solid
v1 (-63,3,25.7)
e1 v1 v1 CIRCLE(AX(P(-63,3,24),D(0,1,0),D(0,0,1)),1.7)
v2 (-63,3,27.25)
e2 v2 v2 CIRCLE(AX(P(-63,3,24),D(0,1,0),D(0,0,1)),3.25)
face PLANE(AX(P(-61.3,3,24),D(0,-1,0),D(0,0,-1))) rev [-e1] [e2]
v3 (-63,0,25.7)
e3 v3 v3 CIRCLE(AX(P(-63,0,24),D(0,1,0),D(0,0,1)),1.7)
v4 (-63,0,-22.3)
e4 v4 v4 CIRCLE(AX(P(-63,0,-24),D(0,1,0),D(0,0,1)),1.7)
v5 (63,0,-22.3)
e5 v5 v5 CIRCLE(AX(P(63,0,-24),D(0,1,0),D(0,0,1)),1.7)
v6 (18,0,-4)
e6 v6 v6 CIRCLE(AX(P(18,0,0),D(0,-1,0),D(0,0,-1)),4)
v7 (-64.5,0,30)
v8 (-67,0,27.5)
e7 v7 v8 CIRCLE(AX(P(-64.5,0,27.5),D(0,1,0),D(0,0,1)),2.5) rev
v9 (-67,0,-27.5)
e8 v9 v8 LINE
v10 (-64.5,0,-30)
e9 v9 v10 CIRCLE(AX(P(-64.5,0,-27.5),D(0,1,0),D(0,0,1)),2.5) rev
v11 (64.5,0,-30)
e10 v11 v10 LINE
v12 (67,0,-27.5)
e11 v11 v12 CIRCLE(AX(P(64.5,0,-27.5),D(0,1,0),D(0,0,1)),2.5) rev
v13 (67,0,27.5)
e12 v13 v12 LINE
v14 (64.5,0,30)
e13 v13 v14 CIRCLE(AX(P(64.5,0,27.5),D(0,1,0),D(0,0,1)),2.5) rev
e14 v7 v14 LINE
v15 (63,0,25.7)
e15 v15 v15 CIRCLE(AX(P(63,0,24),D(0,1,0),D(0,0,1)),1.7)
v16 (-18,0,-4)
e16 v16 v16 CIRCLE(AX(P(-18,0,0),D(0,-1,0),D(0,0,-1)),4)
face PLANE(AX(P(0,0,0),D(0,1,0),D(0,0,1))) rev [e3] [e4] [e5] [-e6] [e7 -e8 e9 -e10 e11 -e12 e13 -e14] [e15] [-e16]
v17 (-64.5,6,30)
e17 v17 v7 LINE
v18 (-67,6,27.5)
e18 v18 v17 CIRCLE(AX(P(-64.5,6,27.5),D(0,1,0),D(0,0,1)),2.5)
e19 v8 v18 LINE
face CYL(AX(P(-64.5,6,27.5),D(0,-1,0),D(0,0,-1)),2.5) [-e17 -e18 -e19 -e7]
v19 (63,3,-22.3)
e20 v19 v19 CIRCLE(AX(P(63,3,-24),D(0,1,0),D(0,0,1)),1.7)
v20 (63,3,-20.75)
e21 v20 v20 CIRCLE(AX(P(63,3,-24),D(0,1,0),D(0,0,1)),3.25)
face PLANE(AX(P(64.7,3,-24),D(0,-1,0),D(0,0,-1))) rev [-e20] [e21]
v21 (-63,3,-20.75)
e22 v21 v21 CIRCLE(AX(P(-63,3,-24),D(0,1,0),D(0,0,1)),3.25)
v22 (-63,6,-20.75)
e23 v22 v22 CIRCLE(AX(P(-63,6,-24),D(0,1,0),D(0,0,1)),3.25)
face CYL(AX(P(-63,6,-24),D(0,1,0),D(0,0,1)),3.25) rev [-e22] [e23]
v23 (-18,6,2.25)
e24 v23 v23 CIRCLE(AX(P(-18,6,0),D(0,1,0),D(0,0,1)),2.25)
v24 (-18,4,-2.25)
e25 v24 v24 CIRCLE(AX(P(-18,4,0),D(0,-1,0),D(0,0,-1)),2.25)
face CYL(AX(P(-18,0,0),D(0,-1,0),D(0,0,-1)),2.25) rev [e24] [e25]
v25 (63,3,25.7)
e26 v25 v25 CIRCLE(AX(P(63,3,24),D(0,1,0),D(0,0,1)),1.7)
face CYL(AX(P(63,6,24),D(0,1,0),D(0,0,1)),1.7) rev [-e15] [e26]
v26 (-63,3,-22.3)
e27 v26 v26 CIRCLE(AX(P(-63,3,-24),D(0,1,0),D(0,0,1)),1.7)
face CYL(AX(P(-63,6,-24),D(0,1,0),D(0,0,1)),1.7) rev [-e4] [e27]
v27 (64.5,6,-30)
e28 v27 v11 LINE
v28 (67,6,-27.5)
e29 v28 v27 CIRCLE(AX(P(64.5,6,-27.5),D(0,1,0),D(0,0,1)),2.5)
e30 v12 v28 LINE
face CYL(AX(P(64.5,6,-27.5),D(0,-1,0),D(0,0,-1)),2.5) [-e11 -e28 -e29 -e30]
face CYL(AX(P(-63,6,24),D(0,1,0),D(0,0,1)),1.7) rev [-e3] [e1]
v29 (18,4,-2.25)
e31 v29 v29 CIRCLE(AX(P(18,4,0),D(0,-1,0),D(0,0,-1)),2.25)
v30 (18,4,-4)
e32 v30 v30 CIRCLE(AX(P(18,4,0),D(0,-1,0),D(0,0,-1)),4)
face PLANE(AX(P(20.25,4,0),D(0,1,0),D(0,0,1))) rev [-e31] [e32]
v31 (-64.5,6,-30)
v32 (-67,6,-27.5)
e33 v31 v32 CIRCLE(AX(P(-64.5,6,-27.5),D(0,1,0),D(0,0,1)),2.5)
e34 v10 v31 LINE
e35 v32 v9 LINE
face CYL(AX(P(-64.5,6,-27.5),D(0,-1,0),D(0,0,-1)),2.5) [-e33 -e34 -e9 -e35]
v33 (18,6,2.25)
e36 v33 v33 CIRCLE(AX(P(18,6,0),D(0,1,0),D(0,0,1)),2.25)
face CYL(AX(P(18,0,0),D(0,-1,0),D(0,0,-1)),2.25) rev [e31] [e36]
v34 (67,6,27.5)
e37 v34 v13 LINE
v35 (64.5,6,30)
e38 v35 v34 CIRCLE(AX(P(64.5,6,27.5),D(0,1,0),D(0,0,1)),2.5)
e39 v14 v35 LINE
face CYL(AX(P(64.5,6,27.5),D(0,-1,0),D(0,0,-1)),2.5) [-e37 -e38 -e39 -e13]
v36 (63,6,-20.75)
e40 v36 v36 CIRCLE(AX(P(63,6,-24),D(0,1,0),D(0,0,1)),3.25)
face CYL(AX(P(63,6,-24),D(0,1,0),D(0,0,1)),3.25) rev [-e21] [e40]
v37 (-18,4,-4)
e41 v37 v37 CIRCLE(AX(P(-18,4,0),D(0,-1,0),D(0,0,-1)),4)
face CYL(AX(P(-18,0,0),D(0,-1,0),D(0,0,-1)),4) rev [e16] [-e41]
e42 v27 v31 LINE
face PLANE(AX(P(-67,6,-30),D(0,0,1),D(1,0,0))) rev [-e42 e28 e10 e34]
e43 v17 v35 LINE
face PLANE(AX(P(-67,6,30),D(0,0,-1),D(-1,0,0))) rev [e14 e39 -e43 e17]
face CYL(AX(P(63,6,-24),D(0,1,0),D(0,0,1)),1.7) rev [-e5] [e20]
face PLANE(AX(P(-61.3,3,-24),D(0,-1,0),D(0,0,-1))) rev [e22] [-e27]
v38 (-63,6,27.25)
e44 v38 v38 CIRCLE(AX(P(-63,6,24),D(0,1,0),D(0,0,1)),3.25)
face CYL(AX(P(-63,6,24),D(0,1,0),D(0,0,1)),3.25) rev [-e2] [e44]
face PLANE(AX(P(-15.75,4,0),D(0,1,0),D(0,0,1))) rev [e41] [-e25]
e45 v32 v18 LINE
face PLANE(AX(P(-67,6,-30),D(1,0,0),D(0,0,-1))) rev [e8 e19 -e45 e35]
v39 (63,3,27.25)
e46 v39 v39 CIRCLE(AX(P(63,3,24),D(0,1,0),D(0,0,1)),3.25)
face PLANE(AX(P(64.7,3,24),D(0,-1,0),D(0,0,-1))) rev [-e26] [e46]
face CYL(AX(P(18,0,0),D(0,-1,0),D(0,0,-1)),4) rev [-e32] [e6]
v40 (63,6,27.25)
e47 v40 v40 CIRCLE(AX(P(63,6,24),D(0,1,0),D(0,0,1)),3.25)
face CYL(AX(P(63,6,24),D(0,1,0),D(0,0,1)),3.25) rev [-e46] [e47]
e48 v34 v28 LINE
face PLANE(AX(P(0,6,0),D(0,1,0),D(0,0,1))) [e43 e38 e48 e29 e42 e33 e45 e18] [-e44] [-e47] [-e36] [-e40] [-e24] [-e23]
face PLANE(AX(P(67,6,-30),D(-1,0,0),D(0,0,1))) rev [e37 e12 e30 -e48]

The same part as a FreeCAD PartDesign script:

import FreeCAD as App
import Part
import Sketcher
from FreeCAD import Vector
Q = App.Units.Quantity


def edges_at(feature, points):
    """Names of the edges that pass closest to the given points."""
    edges = feature.Shape.Edges
    near = lambda p: min(range(len(edges)), key=lambda i: edges[i].distToShape(Part.Vertex(*p))[0])
    return sorted({f"Edge{near(p) + 1}" for p in points})

doc = App.newDocument("Part")
body = doc.addObject("PartDesign::Body", "Body")

sketch1 = body.newObject("Sketcher::SketchObject", "Sketch")
sketch1.AttachmentSupport = (doc.getObject("XZ_Plane"), [""])
sketch1.MapMode = "FlatFace"
sketch1.addGeometry(Part.LineSegment(Vector(-67, -30, 0), Vector(-67, 30, 0)), False)
sketch1.addGeometry(Part.LineSegment(Vector(-67, 30, 0), Vector(67, 30, 0)), False)
sketch1.addGeometry(Part.LineSegment(Vector(67, 30, 0), Vector(67, -30, 0)), False)
sketch1.addGeometry(Part.LineSegment(Vector(67, -30, 0), Vector(-67, -30, 0)), False)
sketch1.addConstraint(Sketcher.Constraint("Coincident", 0, 2, 1, 1))
sketch1.addConstraint(Sketcher.Constraint("Coincident", 1, 2, 2, 1))
sketch1.addConstraint(Sketcher.Constraint("Coincident", 2, 2, 3, 1))
sketch1.addConstraint(Sketcher.Constraint("Coincident", 3, 2, 0, 1))
sketch1.addConstraint(Sketcher.Constraint("Vertical", 0))
sketch1.addConstraint(Sketcher.Constraint("Horizontal", 1))
sketch1.addConstraint(Sketcher.Constraint("Vertical", 2))
sketch1.addConstraint(Sketcher.Constraint("Horizontal", 3))
sketch1.addConstraint(Sketcher.Constraint("Symmetric", 0, 2, 2, 2, -1, 1))
sketch1.addConstraint(Sketcher.Constraint("DistanceX", 1, 1, 1, 2, Q("134 mm")))
sketch1.addConstraint(Sketcher.Constraint("DistanceY", 0, 1, 0, 2, Q("60 mm")))
pad1 = body.newObject("PartDesign::Pad", "Pad")
pad1.Profile = sketch1
pad1.Length = 6
pad1.Reversed = True

sketch2 = body.newObject("Sketcher::SketchObject", "Sketch001")
sketch2.AttachmentSupport = (doc.getObject("XZ_Plane"), [""])
sketch2.MapMode = "FlatFace"
sketch2.AttachmentOffset = App.Placement(Vector(0, 0, -6), App.Rotation())
sketch2.addGeometry(Part.Circle(Vector(-63, -24, 0), Vector(0, 0, 1), 1.7), False)
sketch2.addGeometry(Part.Circle(Vector(-63, 24, 0), Vector(0, 0, 1), 1.7), False)
sketch2.addGeometry(Part.Circle(Vector(63, 24, 0), Vector(0, 0, 1), 1.7), False)
sketch2.addGeometry(Part.Circle(Vector(63, -24, 0), Vector(0, 0, 1), 1.7), False)
sketch2.addConstraint(Sketcher.Constraint("Equal", 0, 1))
sketch2.addConstraint(Sketcher.Constraint("Equal", 1, 2))
sketch2.addConstraint(Sketcher.Constraint("Equal", 2, 3))
sketch2.addConstraint(Sketcher.Constraint("Symmetric", 0, 3, 2, 3, -1, 1))
sketch2.addConstraint(Sketcher.Constraint("Symmetric", 1, 3, 3, 3, -1, 1))
sketch2.addConstraint(Sketcher.Constraint("Symmetric", 1, 3, 2, 3, -2))
sketch2.addConstraint(Sketcher.Constraint("Diameter", 0, Q("3.4 mm")))
sketch2.addConstraint(Sketcher.Constraint("DistanceX", 0, 3, -1, 1, Q("63 mm")))
sketch2.addConstraint(Sketcher.Constraint("DistanceY", 0, 3, -1, 1, Q("24 mm")))
doc.recompute()
hole = body.newObject("PartDesign::Hole", "Hole")
hole.Profile = sketch2
hole.ThreadType = "None"
hole.Diameter = 3.4
hole.DepthType = "Dimension"
hole.Depth = 17.38
hole.DrillPoint = "Angled"
hole.DrillPointAngle = 118
hole.HoleCutType = "Counterbore"
hole.HoleCutDiameter = 6.5
hole.HoleCutDepth = 3
hole.Reversed = True
doc.recompute()

fillet = body.newObject("PartDesign::Fillet", "Fillet")
fillet.Base = (hole, edges_at(hole, [
    (67, 3, 30),
    (-67, 3, 30),
    (-67, 3, -30),
    (67, 3, -30),
]))
fillet.Radius = 2.5

sketch3 = body.newObject("Sketcher::SketchObject", "Sketch002")
sketch3.AttachmentSupport = (doc.getObject("XZ_Plane"), [""])
sketch3.MapMode = "FlatFace"
sketch3.addGeometry(Part.Circle(Vector(-18, 0, 0), Vector(0, 0, 1), 2.25), False)
sketch3.addGeometry(Part.Circle(Vector(18, 0, 0), Vector(0, 0, 1), 2.25), False)
sketch3.addConstraint(Sketcher.Constraint("Equal", 0, 1))
sketch3.addConstraint(Sketcher.Constraint("Symmetric", 0, 3, 1, 3, -1, 1))
sketch3.addConstraint(Sketcher.Constraint("PointOnObject", 0, 3, -1))
sketch3.addConstraint(Sketcher.Constraint("Diameter", 0, Q("4.5 mm")))
sketch3.addConstraint(Sketcher.Constraint("DistanceX", 0, 3, -1, 1, Q("18 mm")))
doc.recompute()
hole2 = body.newObject("PartDesign::Hole", "Hole001")
hole2.Profile = sketch3
hole2.ThreadType = "None"
hole2.Diameter = 4.5
hole2.DepthType = "Dimension"
hole2.Depth = 12
hole2.DrillPoint = "Angled"
hole2.DrillPointAngle = 118
hole2.HoleCutType = "Counterbore"
hole2.HoleCutDiameter = 8
hole2.HoleCutDepth = 4

doc.recompute()
